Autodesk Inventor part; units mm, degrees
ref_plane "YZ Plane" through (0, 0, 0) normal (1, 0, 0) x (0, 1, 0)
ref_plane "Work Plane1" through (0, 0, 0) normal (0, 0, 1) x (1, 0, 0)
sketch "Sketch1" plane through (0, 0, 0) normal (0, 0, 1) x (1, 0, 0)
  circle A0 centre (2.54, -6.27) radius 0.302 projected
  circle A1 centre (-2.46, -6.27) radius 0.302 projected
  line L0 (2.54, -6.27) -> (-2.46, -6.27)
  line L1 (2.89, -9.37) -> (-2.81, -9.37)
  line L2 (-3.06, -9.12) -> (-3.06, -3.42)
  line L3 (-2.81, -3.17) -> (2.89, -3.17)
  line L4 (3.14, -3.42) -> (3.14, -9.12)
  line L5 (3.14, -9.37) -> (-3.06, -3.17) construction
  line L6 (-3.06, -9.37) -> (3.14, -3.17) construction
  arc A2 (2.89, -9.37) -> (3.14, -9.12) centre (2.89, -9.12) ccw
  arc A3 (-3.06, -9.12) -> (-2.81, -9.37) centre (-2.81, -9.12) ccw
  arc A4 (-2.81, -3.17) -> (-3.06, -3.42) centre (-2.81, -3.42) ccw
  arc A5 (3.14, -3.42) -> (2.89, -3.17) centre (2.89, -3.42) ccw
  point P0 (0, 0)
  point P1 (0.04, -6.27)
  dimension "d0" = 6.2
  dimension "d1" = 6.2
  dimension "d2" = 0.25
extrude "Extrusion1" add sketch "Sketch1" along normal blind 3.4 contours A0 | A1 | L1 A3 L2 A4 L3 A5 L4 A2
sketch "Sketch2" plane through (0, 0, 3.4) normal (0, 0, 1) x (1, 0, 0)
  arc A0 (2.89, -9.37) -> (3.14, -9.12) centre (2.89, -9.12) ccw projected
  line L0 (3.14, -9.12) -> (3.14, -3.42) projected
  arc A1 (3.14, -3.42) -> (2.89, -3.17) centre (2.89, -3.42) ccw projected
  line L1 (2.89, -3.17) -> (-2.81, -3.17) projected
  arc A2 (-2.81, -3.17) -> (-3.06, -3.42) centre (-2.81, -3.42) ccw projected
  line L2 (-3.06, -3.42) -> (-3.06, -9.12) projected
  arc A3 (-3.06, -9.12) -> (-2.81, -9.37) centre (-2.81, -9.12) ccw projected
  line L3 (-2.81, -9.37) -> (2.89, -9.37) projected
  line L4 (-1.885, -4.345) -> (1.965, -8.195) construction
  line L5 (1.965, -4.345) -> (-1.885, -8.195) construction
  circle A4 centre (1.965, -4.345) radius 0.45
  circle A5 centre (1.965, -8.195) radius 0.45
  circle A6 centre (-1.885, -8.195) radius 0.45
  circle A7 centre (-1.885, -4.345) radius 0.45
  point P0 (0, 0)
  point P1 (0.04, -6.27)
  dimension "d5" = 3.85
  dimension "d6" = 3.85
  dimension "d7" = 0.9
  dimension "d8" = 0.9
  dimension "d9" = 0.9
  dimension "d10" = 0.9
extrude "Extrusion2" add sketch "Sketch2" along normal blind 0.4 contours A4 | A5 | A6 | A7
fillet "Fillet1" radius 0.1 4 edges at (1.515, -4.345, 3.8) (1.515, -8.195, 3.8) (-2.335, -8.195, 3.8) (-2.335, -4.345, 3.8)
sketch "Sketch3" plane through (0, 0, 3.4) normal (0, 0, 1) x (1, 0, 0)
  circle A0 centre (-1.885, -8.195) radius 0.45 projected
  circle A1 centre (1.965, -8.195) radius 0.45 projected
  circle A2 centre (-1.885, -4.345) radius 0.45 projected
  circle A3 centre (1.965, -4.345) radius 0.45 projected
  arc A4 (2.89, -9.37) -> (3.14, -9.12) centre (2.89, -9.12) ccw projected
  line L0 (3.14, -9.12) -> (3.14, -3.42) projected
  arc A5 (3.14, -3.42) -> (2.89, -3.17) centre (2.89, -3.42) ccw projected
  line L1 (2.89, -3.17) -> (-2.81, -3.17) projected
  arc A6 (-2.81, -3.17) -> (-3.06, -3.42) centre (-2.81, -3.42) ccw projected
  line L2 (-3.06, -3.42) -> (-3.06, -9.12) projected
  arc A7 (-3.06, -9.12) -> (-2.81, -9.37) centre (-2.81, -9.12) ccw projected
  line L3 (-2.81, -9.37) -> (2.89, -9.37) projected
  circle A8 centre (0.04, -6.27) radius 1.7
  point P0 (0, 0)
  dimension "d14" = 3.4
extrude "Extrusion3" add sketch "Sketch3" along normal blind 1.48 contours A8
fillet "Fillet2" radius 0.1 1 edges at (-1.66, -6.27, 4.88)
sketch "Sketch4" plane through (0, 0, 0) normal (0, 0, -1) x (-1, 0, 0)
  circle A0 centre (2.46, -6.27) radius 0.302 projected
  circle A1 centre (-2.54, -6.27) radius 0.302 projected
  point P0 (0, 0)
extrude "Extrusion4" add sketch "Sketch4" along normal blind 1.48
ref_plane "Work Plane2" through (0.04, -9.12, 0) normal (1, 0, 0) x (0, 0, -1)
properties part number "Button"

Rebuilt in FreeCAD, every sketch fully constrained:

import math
import FreeCAD as App
import Part
import Sketcher

V = App.Vector


def edges_at(feature, points):
    """Names of the edges that pass closest to the given points."""
    edges = feature.Shape.Edges
    near = lambda p: min(range(len(edges)), key=lambda i: edges[i].distToShape(Part.Vertex(*p))[0])
    return sorted({f"Edge{near(p) + 1}" for p in points})

doc = App.newDocument("Part")
body = doc.addObject("PartDesign::Body", "Body")

sketch1 = doc.addObject("Sketcher::SketchObject", "Sketch")
body.addObject(sketch1)
sketch1.AttachmentSupport = (doc.XY_Plane, [""])
sketch1.MapMode = "FlatFace"
sketch1.addGeometry([
    Part.LineSegment(V(-2.81, -9.37, 0), V(2.89, -9.37, 0)),
    Part.ArcOfCircle(Part.Circle(V(2.89, -9.12, 0), V(0, 0, 1), 0.25), math.radians(-90), math.radians(0)),
    Part.LineSegment(V(3.14, -9.12, 0), V(3.14, -3.42, 0)),
    Part.ArcOfCircle(Part.Circle(V(2.89, -3.42, 0), V(0, 0, 1), 0.25), math.radians(0), math.radians(90)),
    Part.LineSegment(V(2.89, -3.17, 0), V(-2.81, -3.17, 0)),
    Part.ArcOfCircle(Part.Circle(V(-2.81, -3.42, 0), V(0, 0, 1), 0.25), math.radians(90), math.radians(180)),
    Part.LineSegment(V(-3.06, -3.42, 0), V(-3.06, -9.12, 0)),
    Part.ArcOfCircle(Part.Circle(V(-2.81, -9.12, 0), V(0, 0, 1), 0.25), math.radians(180), math.radians(270)),
], False)
sketch1.addConstraint([
    Sketcher.Constraint("Tangent", 0, 2, 1, 1),
    Sketcher.Constraint("Tangent", 1, 2, 2, 1),
    Sketcher.Constraint("Tangent", 2, 2, 3, 1),
    Sketcher.Constraint("Tangent", 3, 2, 4, 1),
    Sketcher.Constraint("Tangent", 4, 2, 5, 1),
    Sketcher.Constraint("Tangent", 5, 2, 6, 1),
    Sketcher.Constraint("Tangent", 6, 2, 7, 1),
    Sketcher.Constraint("Tangent", 7, 2, 0, 1),
    Sketcher.Constraint("Horizontal", 0),
    Sketcher.Constraint("Vertical", 2),
    Sketcher.Constraint("Horizontal", 4),
    Sketcher.Constraint("Vertical", 6),
    Sketcher.Constraint("Equal", 1, 3),
    Sketcher.Constraint("Equal", 3, 5),
    Sketcher.Constraint("Equal", 5, 7),
    Sketcher.Constraint("Equal", 4, 2),
    Sketcher.Constraint("Radius", 1, 0.25),
    Sketcher.Constraint("DistanceX", 0, 1, 0, 2, 5.7),
    Sketcher.Constraint("DistanceX", -1, 1, 1, 3, 2.89),
    Sketcher.Constraint("DistanceY", 1, 3, -1, 1, 9.12),
])
pad1 = doc.addObject("PartDesign::Pad", "Pad")
body.addObject(pad1)
pad1.Profile = sketch1
pad1.Length = 3.4

sketch2 = doc.addObject("Sketcher::SketchObject", "Sketch001")
body.addObject(sketch2)
sketch2.AttachmentSupport = (doc.XY_Plane, [""])
sketch2.MapMode = "FlatFace"
sketch2.AttachmentOffset = App.Placement(V(0, 0, 3.4), App.Rotation())
sketch2.addGeometry([
    Part.Circle(V(1.97, -4.34, 0), V(0, 0, 1), 0.45),
    Part.Circle(V(1.97, -8.2, 0), V(0, 0, 1), 0.45),
    Part.Circle(V(-1.89, -8.2, 0), V(0, 0, 1), 0.45),
    Part.Circle(V(-1.89, -4.34, 0), V(0, 0, 1), 0.45),
], False)
sketch2.addConstraint([
    Sketcher.Constraint("Equal", 0, 1),
    Sketcher.Constraint("Equal", 1, 2),
    Sketcher.Constraint("Equal", 2, 3),
    Sketcher.Constraint("Horizontal", 1, 3, 2, 3),
    Sketcher.Constraint("Horizontal", 0, 3, 3, 3),
    Sketcher.Constraint("Vertical", 0, 3, 1, 3),
    Sketcher.Constraint("Vertical", 2, 3, 3, 3),
    Sketcher.Constraint("Diameter", 0, 0.9),
    Sketcher.Constraint("DistanceY", 1, 3, 0, 3, 3.85),
    Sketcher.Constraint("DistanceX", 2, 3, 1, 3, 3.85),
    Sketcher.Constraint("DistanceX", -1, 1, 0, 3, 1.965),
    Sketcher.Constraint("DistanceY", 0, 3, -1, 1, 4.345),
])
pad2 = doc.addObject("PartDesign::Pad", "Pad001")
body.addObject(pad2)
pad2.Profile = sketch2
pad2.Length = 0.4
doc.recompute()

fillet = doc.addObject("PartDesign::Fillet", "Fillet")
body.addObject(fillet)
fillet.Base = (pad2, edges_at(pad2, [
    (1.515, -4.345, 3.8),
    (1.515, -8.195, 3.8),
    (-2.335, -8.195, 3.8),
    (-2.335, -4.345, 3.8),
]))
fillet.Radius = 0.1

sketch3 = doc.addObject("Sketcher::SketchObject", "Sketch002")
body.addObject(sketch3)
sketch3.AttachmentSupport = (doc.XY_Plane, [""])
sketch3.MapMode = "FlatFace"
sketch3.AttachmentOffset = App.Placement(V(0, 0, 3.4), App.Rotation())
sketch3.addGeometry(Part.Circle(V(0, -6.3, 0), V(0, 0, 1), 1.7), False)
sketch3.addConstraint([
    Sketcher.Constraint("Diameter", 0, 3.4),
    Sketcher.Constraint("DistanceX", -1, 1, 0, 3, 0.04),
    Sketcher.Constraint("DistanceY", 0, 3, -1, 1, 6.27),
])
pad3 = doc.addObject("PartDesign::Pad", "Pad002")
body.addObject(pad3)
pad3.Profile = sketch3
pad3.Length = 1.48
doc.recompute()

fillet2 = doc.addObject("PartDesign::Fillet", "Fillet001")
body.addObject(fillet2)
fillet2.Base = (pad3, edges_at(pad3, [(-1.66, -6.27, 4.88)]))
fillet2.Radius = 0.1

sketch4 = doc.addObject("Sketcher::SketchObject", "Sketch003")
body.addObject(sketch4)
sketch4.AttachmentSupport = (doc.XY_Plane, [""])
sketch4.MapMode = "FlatFace"
sketch4.addGeometry([
    Part.Circle(V(-2.46, -6.27, 0), V(0, 0, 1), 0.3),
    Part.Circle(V(2.54, -6.27, 0), V(0, 0, 1), 0.3),
], False)
sketch4.addConstraint([
    Sketcher.Constraint("Equal", 0, 1),
    Sketcher.Constraint("Horizontal", 0, 3, 1, 3),
    Sketcher.Constraint("Diameter", 0, 0.604),
    Sketcher.Constraint("DistanceX", 0, 3, 1, 3, 5.0),
    Sketcher.Constraint("DistanceX", 0, 3, -1, 1, 2.46),
    Sketcher.Constraint("DistanceY", 0, 3, -1, 1, 6.27),
])
pad4 = doc.addObject("PartDesign::Pad", "Pad003")
body.addObject(pad4)
pad4.Profile = sketch4
pad4.Length = 1.48
pad4.Reversed = True

doc.recompute()
